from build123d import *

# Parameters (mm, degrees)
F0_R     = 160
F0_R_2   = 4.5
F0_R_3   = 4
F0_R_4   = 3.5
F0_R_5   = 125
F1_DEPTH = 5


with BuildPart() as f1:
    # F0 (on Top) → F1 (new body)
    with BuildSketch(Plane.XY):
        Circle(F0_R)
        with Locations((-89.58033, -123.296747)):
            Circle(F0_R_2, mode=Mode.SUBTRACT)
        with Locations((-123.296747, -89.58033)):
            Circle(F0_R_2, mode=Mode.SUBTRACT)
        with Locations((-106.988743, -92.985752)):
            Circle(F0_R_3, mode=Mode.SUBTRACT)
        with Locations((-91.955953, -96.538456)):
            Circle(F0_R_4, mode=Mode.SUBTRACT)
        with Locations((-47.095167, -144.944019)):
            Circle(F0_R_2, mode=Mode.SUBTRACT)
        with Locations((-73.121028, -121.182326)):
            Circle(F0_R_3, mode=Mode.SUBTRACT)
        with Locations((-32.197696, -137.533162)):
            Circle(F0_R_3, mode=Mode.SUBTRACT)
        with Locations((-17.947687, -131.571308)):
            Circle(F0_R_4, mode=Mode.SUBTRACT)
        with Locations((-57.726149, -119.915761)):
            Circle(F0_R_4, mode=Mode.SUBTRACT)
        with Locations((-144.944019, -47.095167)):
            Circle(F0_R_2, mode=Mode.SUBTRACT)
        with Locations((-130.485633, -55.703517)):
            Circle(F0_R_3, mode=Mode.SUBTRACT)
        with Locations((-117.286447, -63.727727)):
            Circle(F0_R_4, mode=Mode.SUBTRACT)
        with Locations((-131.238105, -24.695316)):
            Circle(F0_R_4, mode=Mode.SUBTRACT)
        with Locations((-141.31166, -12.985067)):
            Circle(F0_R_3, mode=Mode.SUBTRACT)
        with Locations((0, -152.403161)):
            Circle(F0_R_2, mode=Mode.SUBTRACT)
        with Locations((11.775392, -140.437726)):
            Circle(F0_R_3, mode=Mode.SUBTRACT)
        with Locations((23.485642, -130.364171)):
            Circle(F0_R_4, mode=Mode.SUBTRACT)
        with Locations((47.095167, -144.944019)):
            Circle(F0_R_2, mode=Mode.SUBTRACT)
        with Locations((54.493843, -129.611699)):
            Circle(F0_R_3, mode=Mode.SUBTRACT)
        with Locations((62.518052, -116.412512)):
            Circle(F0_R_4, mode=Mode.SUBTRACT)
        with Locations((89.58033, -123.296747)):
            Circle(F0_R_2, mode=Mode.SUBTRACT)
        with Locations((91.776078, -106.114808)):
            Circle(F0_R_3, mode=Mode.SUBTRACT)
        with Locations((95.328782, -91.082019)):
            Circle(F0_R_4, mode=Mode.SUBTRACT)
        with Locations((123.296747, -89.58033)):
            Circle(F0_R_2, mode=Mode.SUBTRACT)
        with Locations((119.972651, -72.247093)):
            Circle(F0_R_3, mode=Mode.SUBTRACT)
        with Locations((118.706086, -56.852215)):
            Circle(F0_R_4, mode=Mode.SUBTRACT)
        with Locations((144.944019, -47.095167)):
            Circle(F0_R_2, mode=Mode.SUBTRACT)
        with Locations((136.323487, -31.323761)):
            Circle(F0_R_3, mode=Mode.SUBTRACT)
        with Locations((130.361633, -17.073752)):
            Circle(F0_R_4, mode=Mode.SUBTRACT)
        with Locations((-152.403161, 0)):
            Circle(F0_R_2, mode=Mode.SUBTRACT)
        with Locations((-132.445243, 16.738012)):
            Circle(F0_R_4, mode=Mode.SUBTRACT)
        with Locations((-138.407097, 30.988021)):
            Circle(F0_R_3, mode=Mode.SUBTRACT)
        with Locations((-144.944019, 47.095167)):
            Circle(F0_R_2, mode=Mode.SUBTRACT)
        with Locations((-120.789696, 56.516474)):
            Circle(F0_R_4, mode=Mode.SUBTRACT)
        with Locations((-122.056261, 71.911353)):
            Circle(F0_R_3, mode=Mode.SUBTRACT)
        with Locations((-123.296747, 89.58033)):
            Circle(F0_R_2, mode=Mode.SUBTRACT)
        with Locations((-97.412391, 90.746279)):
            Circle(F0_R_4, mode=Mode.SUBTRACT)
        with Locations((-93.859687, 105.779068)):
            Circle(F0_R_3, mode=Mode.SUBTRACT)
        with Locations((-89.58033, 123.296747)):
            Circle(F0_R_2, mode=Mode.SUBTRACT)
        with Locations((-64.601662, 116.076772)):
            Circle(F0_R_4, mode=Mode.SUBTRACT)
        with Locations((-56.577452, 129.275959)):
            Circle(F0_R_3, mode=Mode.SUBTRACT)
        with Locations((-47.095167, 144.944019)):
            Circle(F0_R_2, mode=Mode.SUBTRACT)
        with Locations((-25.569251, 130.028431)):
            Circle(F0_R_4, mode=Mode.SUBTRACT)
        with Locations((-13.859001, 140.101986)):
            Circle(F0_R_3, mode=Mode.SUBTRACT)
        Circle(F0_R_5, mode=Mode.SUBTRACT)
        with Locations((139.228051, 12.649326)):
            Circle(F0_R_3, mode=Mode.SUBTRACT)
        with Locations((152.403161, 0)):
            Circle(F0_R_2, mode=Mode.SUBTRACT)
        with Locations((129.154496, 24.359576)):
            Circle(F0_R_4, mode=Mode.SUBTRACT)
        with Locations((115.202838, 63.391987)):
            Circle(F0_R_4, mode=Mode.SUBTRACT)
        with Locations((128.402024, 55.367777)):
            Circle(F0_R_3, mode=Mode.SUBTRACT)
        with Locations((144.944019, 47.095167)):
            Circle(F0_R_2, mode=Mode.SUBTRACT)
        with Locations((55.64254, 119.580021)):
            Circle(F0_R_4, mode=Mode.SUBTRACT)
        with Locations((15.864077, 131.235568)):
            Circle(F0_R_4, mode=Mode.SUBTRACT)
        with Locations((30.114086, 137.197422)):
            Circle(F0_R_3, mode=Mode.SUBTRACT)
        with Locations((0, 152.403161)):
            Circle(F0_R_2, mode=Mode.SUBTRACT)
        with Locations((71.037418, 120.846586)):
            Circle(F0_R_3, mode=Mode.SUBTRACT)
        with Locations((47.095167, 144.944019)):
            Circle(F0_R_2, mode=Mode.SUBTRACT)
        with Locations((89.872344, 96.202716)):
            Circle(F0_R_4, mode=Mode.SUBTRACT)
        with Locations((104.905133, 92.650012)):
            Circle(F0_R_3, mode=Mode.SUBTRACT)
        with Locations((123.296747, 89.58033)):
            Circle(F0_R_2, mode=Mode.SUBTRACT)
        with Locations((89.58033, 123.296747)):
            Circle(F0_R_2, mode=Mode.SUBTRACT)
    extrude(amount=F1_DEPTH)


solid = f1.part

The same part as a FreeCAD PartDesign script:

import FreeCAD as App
import Part
import Sketcher
from FreeCAD import Vector

doc = App.newDocument("Part")
params = doc.addObject("Spreadsheet::Sheet", "Params")
for row, (alias, value) in enumerate([
    ("sketch1_diameter", "320 mm"),
    ("sketch1_diameter2", "9 mm"),
    ("sketch1_diameter3", "8 mm"),
    ("sketch1_diameter4", "7 mm"),
    ("sketch1_diameter5", "250 mm"),
    ("pad1_length", "5 mm"),
], start=1):
    params.set(f"A{row}", alias)
    params.set(f"B{row}", "=" + value)
    params.setAlias(f"B{row}", alias)

body = doc.addObject("PartDesign::Body", "Body")

sketch1 = body.newObject("Sketcher::SketchObject", "Sketch")
sketch1.AttachmentSupport = (doc.getObject("XY_Plane"), [""])
sketch1.MapMode = "FlatFace"
sketch1.addGeometry([
    Part.Circle(Vector(0, 0, 0), Vector(0, 0, 1), 160),
    Part.Circle(Vector(-89.6, -123.3, 0), Vector(0, 0, 1), 4.5),
    Part.Circle(Vector(-123.3, -89.6, 0), Vector(0, 0, 1), 4.5),
    Part.Circle(Vector(-107, -93, 0), Vector(0, 0, 1), 4),
    Part.Circle(Vector(-92, -96.5, 0), Vector(0, 0, 1), 3.5),
    Part.Circle(Vector(-47.1, -144.9, 0), Vector(0, 0, 1), 4.5),
    Part.Circle(Vector(-73.1, -121.2, 0), Vector(0, 0, 1), 4),
    Part.Circle(Vector(-57.7, -119.9, 0), Vector(0, 0, 1), 3.5),
    Part.Circle(Vector(-32.2, -137.5, 0), Vector(0, 0, 1), 4),
    Part.Circle(Vector(-17.9, -131.6, 0), Vector(0, 0, 1), 3.5),
    Part.Circle(Vector(-144.9, -47.1, 0), Vector(0, 0, 1), 4.5),
    Part.Circle(Vector(-130.5, -55.7, 0), Vector(0, 0, 1), 4),
    Part.Circle(Vector(-117.3, -63.7, 0), Vector(0, 0, 1), 3.5),
    Part.Circle(Vector(-131.2, -24.7, 0), Vector(0, 0, 1), 3.5),
    Part.Circle(Vector(-141.3, -13, 0), Vector(0, 0, 1), 4),
    Part.Circle(Vector(0, -152.4, 0), Vector(0, 0, 1), 4.5),
    Part.Circle(Vector(11.8, -140.4, 0), Vector(0, 0, 1), 4),
    Part.Circle(Vector(23.5, -130.4, 0), Vector(0, 0, 1), 3.5),
    Part.Circle(Vector(47.1, -144.9, 0), Vector(0, 0, 1), 4.5),
    Part.Circle(Vector(54.5, -129.6, 0), Vector(0, 0, 1), 4),
    Part.Circle(Vector(62.5, -116.4, 0), Vector(0, 0, 1), 3.5),
    Part.Circle(Vector(89.6, -123.3, 0), Vector(0, 0, 1), 4.5),
    Part.Circle(Vector(91.8, -106.1, 0), Vector(0, 0, 1), 4),
    Part.Circle(Vector(95.3, -91.1, 0), Vector(0, 0, 1), 3.5),
    Part.Circle(Vector(123.3, -89.6, 0), Vector(0, 0, 1), 4.5),
    Part.Circle(Vector(120, -72.2, 0), Vector(0, 0, 1), 4),
    Part.Circle(Vector(118.7, -56.9, 0), Vector(0, 0, 1), 3.5),
    Part.Circle(Vector(144.9, -47.1, 0), Vector(0, 0, 1), 4.5),
    Part.Circle(Vector(136.3, -31.3, 0), Vector(0, 0, 1), 4),
    Part.Circle(Vector(130.4, -17.1, 0), Vector(0, 0, 1), 3.5),
    Part.Circle(Vector(-152.4, 0, 0), Vector(0, 0, 1), 4.5),
    Part.Circle(Vector(-132.4, 16.7, 0), Vector(0, 0, 1), 3.5),
    Part.Circle(Vector(-138.4, 31, 0), Vector(0, 0, 1), 4),
    Part.Circle(Vector(-144.9, 47.1, 0), Vector(0, 0, 1), 4.5),
    Part.Circle(Vector(-120.8, 56.5, 0), Vector(0, 0, 1), 3.5),
    Part.Circle(Vector(-122.1, 71.9, 0), Vector(0, 0, 1), 4),
    Part.Circle(Vector(-123.3, 89.6, 0), Vector(0, 0, 1), 4.5),
    Part.Circle(Vector(-97.4, 90.7, 0), Vector(0, 0, 1), 3.5),
    Part.Circle(Vector(-93.9, 105.8, 0), Vector(0, 0, 1), 4),
    Part.Circle(Vector(-89.6, 123.3, 0), Vector(0, 0, 1), 4.5),
    Part.Circle(Vector(-64.6, 116.1, 0), Vector(0, 0, 1), 3.5),
    Part.Circle(Vector(-56.6, 129.3, 0), Vector(0, 0, 1), 4),
    Part.Circle(Vector(-47.1, 144.9, 0), Vector(0, 0, 1), 4.5),
    Part.Circle(Vector(-25.6, 130, 0), Vector(0, 0, 1), 3.5),
    Part.Circle(Vector(-13.9, 140.1, 0), Vector(0, 0, 1), 4),
    Part.Circle(Vector(0, 0, 0), Vector(0, 0, 1), 125),
    Part.Circle(Vector(152.4, 0, 0), Vector(0, 0, 1), 4.5),
    Part.Circle(Vector(139.2, 12.6, 0), Vector(0, 0, 1), 4),
    Part.Circle(Vector(129.2, 24.4, 0), Vector(0, 0, 1), 3.5),
    Part.Circle(Vector(115.2, 63.4, 0), Vector(0, 0, 1), 3.5),
    Part.Circle(Vector(128.4, 55.4, 0), Vector(0, 0, 1), 4),
    Part.Circle(Vector(144.9, 47.1, 0), Vector(0, 0, 1), 4.5),
    Part.Circle(Vector(15.9, 131.2, 0), Vector(0, 0, 1), 3.5),
    Part.Circle(Vector(30.1, 137.2, 0), Vector(0, 0, 1), 4),
    Part.Circle(Vector(0, 152.4, 0), Vector(0, 0, 1), 4.5),
    Part.Circle(Vector(55.6, 119.6, 0), Vector(0, 0, 1), 3.5),
    Part.Circle(Vector(71, 120.8, 0), Vector(0, 0, 1), 4),
    Part.Circle(Vector(47.1, 144.9, 0), Vector(0, 0, 1), 4.5),
    Part.Circle(Vector(89.9, 96.2, 0), Vector(0, 0, 1), 3.5),
    Part.Circle(Vector(104.9, 92.7, 0), Vector(0, 0, 1), 4),
    Part.Circle(Vector(123.3, 89.6, 0), Vector(0, 0, 1), 4.5),
    Part.Circle(Vector(89.6, 123.3, 0), Vector(0, 0, 1), 4.5),
], False)
sketch1.addConstraint([
    Sketcher.Constraint("Coincident", 0, 3, -1, 1),
    Sketcher.Constraint("Coincident", 45, 3, -1, 1),
    Sketcher.Constraint("Equal", 1, 2),
    Sketcher.Constraint("Equal", 2, 5),
    Sketcher.Constraint("Equal", 3, 6),
    Sketcher.Constraint("Equal", 4, 7),
    Sketcher.Constraint("Equal", 6, 8),
    Sketcher.Constraint("Equal", 7, 9),
    Sketcher.Constraint("Equal", 5, 10),
    Sketcher.Constraint("Equal", 8, 11),
    Sketcher.Constraint("Equal", 9, 12),
    Sketcher.Constraint("Equal", 12, 13),
    Sketcher.Constraint("Equal", 11, 14),
    Sketcher.Constraint("Equal", 10, 15),
    Sketcher.Constraint("Equal", 14, 16),
    Sketcher.Constraint("Equal", 13, 17),
    Sketcher.Constraint("Equal", 15, 18),
    Sketcher.Constraint("Equal", 16, 19),
    Sketcher.Constraint("Equal", 17, 20),
    Sketcher.Constraint("Equal", 18, 21),
    Sketcher.Constraint("Equal", 19, 22),
    Sketcher.Constraint("Equal", 20, 23),
    Sketcher.Constraint("Equal", 21, 24),
    Sketcher.Constraint("Equal", 22, 25),
    Sketcher.Constraint("Equal", 23, 26),
    Sketcher.Constraint("Equal", 24, 27),
    Sketcher.Constraint("Equal", 25, 28),
    Sketcher.Constraint("Equal", 26, 29),
    Sketcher.Constraint("Equal", 27, 30),
    Sketcher.Constraint("Equal", 29, 31),
    Sketcher.Constraint("Equal", 28, 32),
    Sketcher.Constraint("Equal", 30, 33),
    Sketcher.Constraint("Equal", 31, 34),
    Sketcher.Constraint("Equal", 32, 35),
    Sketcher.Constraint("Equal", 33, 36),
    Sketcher.Constraint("Equal", 34, 37),
    Sketcher.Constraint("Equal", 35, 38),
    Sketcher.Constraint("Equal", 36, 39),
    Sketcher.Constraint("Equal", 37, 40),
    Sketcher.Constraint("Equal", 38, 41),
    Sketcher.Constraint("Equal", 39, 42),
    Sketcher.Constraint("Equal", 40, 43),
    Sketcher.Constraint("Equal", 41, 44),
    Sketcher.Constraint("Equal", 42, 46),
    Sketcher.Constraint("Equal", 44, 47),
    Sketcher.Constraint("Equal", 43, 48),
    Sketcher.Constraint("Equal", 48, 49),
    Sketcher.Constraint("Equal", 47, 50),
    Sketcher.Constraint("Equal", 46, 51),
    Sketcher.Constraint("Equal", 49, 52),
    Sketcher.Constraint("Equal", 50, 53),
    Sketcher.Constraint("Equal", 51, 54),
    Sketcher.Constraint("Equal", 52, 55),
    Sketcher.Constraint("Equal", 53, 56),
    Sketcher.Constraint("Equal", 54, 57),
    Sketcher.Constraint("Equal", 55, 58),
    Sketcher.Constraint("Equal", 56, 59),
    Sketcher.Constraint("Equal", 57, 60),
    Sketcher.Constraint("Equal", 60, 61),
    Sketcher.Constraint("Symmetric", 27, 3, 33, 3, -1, 1),
    Sketcher.Constraint("Symmetric", 24, 3, 36, 3, -1, 1),
    Sketcher.Constraint("Symmetric", 21, 3, 39, 3, -1, 1),
    Sketcher.Constraint("Symmetric", 18, 3, 42, 3, -1, 1),
    Sketcher.Constraint("Symmetric", 30, 3, 46, 3, -1, 1),
    Sketcher.Constraint("Symmetric", 10, 3, 51, 3, -1, 1),
    Sketcher.Constraint("Symmetric", 15, 3, 54, 3, -1, 1),
    Sketcher.Constraint("Symmetric", 5, 3, 57, 3, -1, 1),
    Sketcher.Constraint("Symmetric", 2, 3, 60, 3, -1, 1),
    Sketcher.Constraint("Symmetric", 1, 3, 61, 3, -1, 1),
    Sketcher.Constraint("Symmetric", 5, 3, 18, 3, -2),
    Sketcher.Constraint("Symmetric", 1, 3, 21, 3, -2),
    Sketcher.Constraint("Symmetric", 2, 3, 24, 3, -2),
    Sketcher.Constraint("Symmetric", 10, 3, 27, 3, -2),
    Sketcher.Constraint("PointOnObject", 15, 3, -2),
    Sketcher.Constraint("PointOnObject", 30, 3, -1),
    Sketcher.Constraint("Diameter", 0, 320.0),
    Sketcher.Constraint("Diameter", 1, 9.0),
    Sketcher.Constraint("Diameter", 3, 8.0),
    Sketcher.Constraint("Diameter", 4, 7.0),
    Sketcher.Constraint("Diameter", 45, 250.0),
    Sketcher.Constraint("DistanceX", 44, 3, -1, 1, 13.859001),
    Sketcher.Constraint("DistanceY", 19, 3, -1, 1, 129.611699),
    Sketcher.Constraint("DistanceX", 1, 3, -1, 1, 89.58033),
    Sketcher.Constraint("DistanceY", 2, 3, -1, 1, 89.58033),
    Sketcher.Constraint("DistanceY", 5, 3, -1, 1, 144.944019),
    Sketcher.Constraint("DistanceX", 7, 3, -1, 1, 57.726149),
    Sketcher.Constraint("DistanceY", 7, 3, -1, 1, 119.915761),
    Sketcher.Constraint("DistanceY", 8, 3, -1, 1, 137.533162),
    Sketcher.Constraint("DistanceX", 10, 3, -1, 1, 144.944019),
    Sketcher.Constraint("DistanceX", 14, 3, -1, 1, 141.31166),
    Sketcher.Constraint("DistanceY", 15, 3, -1, 1, 152.403161),
    Sketcher.Constraint("DistanceX", -1, 1, 17, 3, 23.485642),
    Sketcher.Constraint("DistanceY", 17, 3, -1, 1, 130.364171),
    Sketcher.Constraint("DistanceX", -1, 1, 20, 3, 62.518052),
    Sketcher.Constraint("DistanceX", -1, 1, 22, 3, 91.776078),
    Sketcher.Constraint("DistanceY", 23, 3, -1, 1, 91.082019),
    Sketcher.Constraint("DistanceX", -1, 1, 25, 3, 119.972651),
    Sketcher.Constraint("DistanceY", 28, 3, -1, 1, 31.323761),
    Sketcher.Constraint("DistanceY", 29, 3, -1, 1, 17.073752),
    Sketcher.Constraint("DistanceX", 30, 3, -1, 1, 152.403161),
    Sketcher.Constraint("DistanceY", -1, 1, 32, 3, 30.988021),
    Sketcher.Constraint("DistanceX", 35, 3, -1, 1, 122.056261),
    Sketcher.Constraint("DistanceX", 37, 3, -1, 1, 97.412391),
    Sketcher.Constraint("DistanceY", -1, 1, 37, 3, 90.746279),
    Sketcher.Constraint("DistanceY", -1, 1, 41, 3, 129.275959),
    Sketcher.Constraint("DistanceX", 43, 3, -1, 1, 25.569251),
    Sketcher.Constraint("DistanceY", -1, 1, 43, 3, 130.028431),
    Sketcher.Constraint("DistanceX", -1, 1, 47, 3, 139.228051),
    Sketcher.Constraint("DistanceX", -1, 1, 49, 3, 115.202838),
    Sketcher.Constraint("DistanceY", -1, 1, 52, 3, 131.235568),
    Sketcher.Constraint("DistanceY", -1, 1, 53, 3, 137.197422),
    Sketcher.Constraint("DistanceX", -1, 1, 55, 3, 55.64254),
    Sketcher.Constraint("DistanceY", -1, 1, 55, 3, 119.580021),
    Sketcher.Constraint("DistanceX", -1, 1, 56, 3, 71.037418),
    Sketcher.Constraint("DistanceY", 1, 3, -1, 1, 123.296747),
    Sketcher.Constraint("DistanceX", 2, 3, -1, 1, 123.296747),
    Sketcher.Constraint("DistanceX", 3, 3, -1, 1, 106.988743),
    Sketcher.Constraint("DistanceY", 3, 3, -1, 1, 92.985752),
    Sketcher.Constraint("DistanceX", 4, 3, -1, 1, 91.955953),
    Sketcher.Constraint("DistanceY", 4, 3, -1, 1, 96.538456),
    Sketcher.Constraint("DistanceX", 5, 3, -1, 1, 47.095167),
    Sketcher.Constraint("DistanceX", 6, 3, -1, 1, 73.121028),
    Sketcher.Constraint("DistanceY", 6, 3, -1, 1, 121.182326),
    Sketcher.Constraint("DistanceX", 8, 3, -1, 1, 32.197696),
    Sketcher.Constraint("DistanceX", 9, 3, -1, 1, 17.947687),
    Sketcher.Constraint("DistanceY", 9, 3, -1, 1, 131.571308),
    Sketcher.Constraint("DistanceY", 10, 3, -1, 1, 47.095167),
    Sketcher.Constraint("DistanceX", 11, 3, -1, 1, 130.485633),
    Sketcher.Constraint("DistanceY", 11, 3, -1, 1, 55.703517),
    Sketcher.Constraint("DistanceX", 12, 3, -1, 1, 117.286447),
    Sketcher.Constraint("DistanceY", 12, 3, -1, 1, 63.727727),
    Sketcher.Constraint("DistanceX", 13, 3, -1, 1, 131.238105),
    Sketcher.Constraint("DistanceY", 13, 3, -1, 1, 24.695316),
    Sketcher.Constraint("DistanceY", 14, 3, -1, 1, 12.985067),
    Sketcher.Constraint("DistanceX", -1, 1, 16, 3, 11.775392),
    Sketcher.Constraint("DistanceY", 16, 3, -1, 1, 140.437726),
    Sketcher.Constraint("DistanceX", -1, 1, 19, 3, 54.493843),
    Sketcher.Constraint("DistanceY", 20, 3, -1, 1, 116.412512),
    Sketcher.Constraint("DistanceY", 22, 3, -1, 1, 106.114808),
    Sketcher.Constraint("DistanceX", -1, 1, 23, 3, 95.328782),
    Sketcher.Constraint("DistanceY", 25, 3, -1, 1, 72.247093),
    Sketcher.Constraint("DistanceX", -1, 1, 26, 3, 118.706086),
    Sketcher.Constraint("DistanceY", 26, 3, -1, 1, 56.852215),
    Sketcher.Constraint("DistanceX", -1, 1, 28, 3, 136.323487),
    Sketcher.Constraint("DistanceX", -1, 1, 29, 3, 130.361633),
    Sketcher.Constraint("DistanceX", 31, 3, -1, 1, 132.445243),
    Sketcher.Constraint("DistanceY", -1, 1, 31, 3, 16.738012),
    Sketcher.Constraint("DistanceX", 32, 3, -1, 1, 138.407097),
    Sketcher.Constraint("DistanceX", 34, 3, -1, 1, 120.789696),
    Sketcher.Constraint("DistanceY", -1, 1, 34, 3, 56.516474),
    Sketcher.Constraint("DistanceY", -1, 1, 35, 3, 71.911353),
    Sketcher.Constraint("DistanceX", 38, 3, -1, 1, 93.859687),
    Sketcher.Constraint("DistanceY", -1, 1, 38, 3, 105.779068),
    Sketcher.Constraint("DistanceX", 40, 3, -1, 1, 64.601662),
    Sketcher.Constraint("DistanceY", -1, 1, 40, 3, 116.076772),
    Sketcher.Constraint("DistanceX", 41, 3, -1, 1, 56.577452),
    Sketcher.Constraint("DistanceY", -1, 1, 44, 3, 140.101986),
    Sketcher.Constraint("DistanceY", -1, 1, 47, 3, 12.649326),
    Sketcher.Constraint("DistanceX", -1, 1, 48, 3, 129.154496),
    Sketcher.Constraint("DistanceY", -1, 1, 48, 3, 24.359576),
    Sketcher.Constraint("DistanceY", -1, 1, 49, 3, 63.391987),
    Sketcher.Constraint("DistanceX", -1, 1, 50, 3, 128.402024),
    Sketcher.Constraint("DistanceY", -1, 1, 50, 3, 55.367777),
    Sketcher.Constraint("DistanceX", -1, 1, 52, 3, 15.864077),
    Sketcher.Constraint("DistanceX", -1, 1, 53, 3, 30.114086),
    Sketcher.Constraint("DistanceY", -1, 1, 56, 3, 120.846586),
    Sketcher.Constraint("DistanceX", -1, 1, 58, 3, 89.872344),
    Sketcher.Constraint("DistanceY", -1, 1, 58, 3, 96.202716),
    Sketcher.Constraint("DistanceX", -1, 1, 59, 3, 104.905133),
    Sketcher.Constraint("DistanceY", -1, 1, 59, 3, 92.650012),
])
sketch1.setExpression("Constraints[75]", "Params.sketch1_diameter")
sketch1.setExpression("Constraints[76]", "Params.sketch1_diameter2")
sketch1.setExpression("Constraints[77]", "Params.sketch1_diameter3")
sketch1.setExpression("Constraints[78]", "Params.sketch1_diameter4")
sketch1.setExpression("Constraints[79]", "Params.sketch1_diameter5")
pad1 = body.newObject("PartDesign::Pad", "Pad")
pad1.Profile = sketch1
pad1.setExpression("Length", "Params.pad1_length")

doc.recompute()
